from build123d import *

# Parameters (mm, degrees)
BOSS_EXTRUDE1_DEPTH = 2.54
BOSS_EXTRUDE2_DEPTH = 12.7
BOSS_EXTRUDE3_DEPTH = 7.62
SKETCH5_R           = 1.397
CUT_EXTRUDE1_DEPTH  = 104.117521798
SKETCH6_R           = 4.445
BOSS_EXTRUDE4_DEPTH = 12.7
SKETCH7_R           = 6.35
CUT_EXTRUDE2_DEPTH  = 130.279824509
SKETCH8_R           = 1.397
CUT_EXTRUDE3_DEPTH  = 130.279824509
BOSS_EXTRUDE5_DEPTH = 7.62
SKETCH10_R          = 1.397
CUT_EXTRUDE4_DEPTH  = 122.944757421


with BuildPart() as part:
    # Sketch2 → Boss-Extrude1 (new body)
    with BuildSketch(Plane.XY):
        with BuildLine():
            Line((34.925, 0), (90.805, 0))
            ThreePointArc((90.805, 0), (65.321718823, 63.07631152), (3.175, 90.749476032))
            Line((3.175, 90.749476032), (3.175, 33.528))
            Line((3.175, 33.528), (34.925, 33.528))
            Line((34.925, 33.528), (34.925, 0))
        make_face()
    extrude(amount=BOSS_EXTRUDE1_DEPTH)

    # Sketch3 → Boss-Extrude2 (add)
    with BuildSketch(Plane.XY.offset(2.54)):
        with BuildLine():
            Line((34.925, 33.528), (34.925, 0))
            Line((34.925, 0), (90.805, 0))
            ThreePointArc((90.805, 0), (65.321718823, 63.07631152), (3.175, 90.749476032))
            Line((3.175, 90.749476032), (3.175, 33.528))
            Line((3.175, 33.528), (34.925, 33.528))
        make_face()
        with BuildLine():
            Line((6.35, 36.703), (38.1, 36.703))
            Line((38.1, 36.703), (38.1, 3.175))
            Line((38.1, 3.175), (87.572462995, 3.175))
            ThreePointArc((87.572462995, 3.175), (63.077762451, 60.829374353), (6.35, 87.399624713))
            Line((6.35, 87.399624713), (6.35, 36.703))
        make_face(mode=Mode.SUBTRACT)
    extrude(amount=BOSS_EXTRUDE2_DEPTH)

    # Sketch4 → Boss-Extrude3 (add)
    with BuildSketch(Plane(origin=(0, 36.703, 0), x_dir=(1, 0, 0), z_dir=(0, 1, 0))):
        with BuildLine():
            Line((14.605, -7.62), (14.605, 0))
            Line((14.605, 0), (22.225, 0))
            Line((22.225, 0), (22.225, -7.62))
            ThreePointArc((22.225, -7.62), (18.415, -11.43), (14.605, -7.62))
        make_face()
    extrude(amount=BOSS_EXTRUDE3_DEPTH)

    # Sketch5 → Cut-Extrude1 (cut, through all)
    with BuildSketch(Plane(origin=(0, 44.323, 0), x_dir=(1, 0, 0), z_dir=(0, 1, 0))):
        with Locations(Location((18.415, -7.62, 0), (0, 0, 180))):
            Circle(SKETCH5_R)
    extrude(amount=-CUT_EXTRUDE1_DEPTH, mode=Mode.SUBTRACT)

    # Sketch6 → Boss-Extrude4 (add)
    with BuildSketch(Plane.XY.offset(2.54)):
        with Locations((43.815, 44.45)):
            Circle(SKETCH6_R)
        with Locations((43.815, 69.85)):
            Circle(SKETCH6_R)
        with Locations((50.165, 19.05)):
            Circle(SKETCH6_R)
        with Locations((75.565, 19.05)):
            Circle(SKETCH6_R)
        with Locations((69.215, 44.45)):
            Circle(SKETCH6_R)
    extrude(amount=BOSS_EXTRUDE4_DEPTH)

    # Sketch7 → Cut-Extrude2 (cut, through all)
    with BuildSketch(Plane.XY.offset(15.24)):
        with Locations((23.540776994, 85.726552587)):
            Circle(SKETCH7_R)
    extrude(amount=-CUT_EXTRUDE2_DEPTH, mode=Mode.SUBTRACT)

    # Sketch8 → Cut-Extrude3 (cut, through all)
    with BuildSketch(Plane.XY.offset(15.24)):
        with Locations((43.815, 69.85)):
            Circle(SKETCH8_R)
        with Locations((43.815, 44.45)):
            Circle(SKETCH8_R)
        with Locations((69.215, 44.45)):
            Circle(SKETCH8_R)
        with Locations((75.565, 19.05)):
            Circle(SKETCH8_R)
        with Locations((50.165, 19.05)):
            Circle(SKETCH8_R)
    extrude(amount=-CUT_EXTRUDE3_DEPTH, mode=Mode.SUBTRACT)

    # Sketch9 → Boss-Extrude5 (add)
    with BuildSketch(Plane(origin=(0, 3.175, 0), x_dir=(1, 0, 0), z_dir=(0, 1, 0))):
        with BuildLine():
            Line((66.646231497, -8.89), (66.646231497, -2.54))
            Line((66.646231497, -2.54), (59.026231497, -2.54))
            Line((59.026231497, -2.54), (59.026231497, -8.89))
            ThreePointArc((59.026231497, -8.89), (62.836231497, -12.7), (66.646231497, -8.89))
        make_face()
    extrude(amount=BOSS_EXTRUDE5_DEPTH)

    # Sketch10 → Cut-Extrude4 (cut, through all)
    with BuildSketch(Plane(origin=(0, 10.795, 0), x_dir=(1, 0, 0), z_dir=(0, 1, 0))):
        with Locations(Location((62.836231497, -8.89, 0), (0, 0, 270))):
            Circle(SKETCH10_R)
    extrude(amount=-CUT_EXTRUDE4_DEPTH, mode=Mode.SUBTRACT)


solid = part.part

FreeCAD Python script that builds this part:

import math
import FreeCAD as App
import Part
import Sketcher

V = App.Vector
Q = App.Units.Quantity

doc = App.newDocument("Part")
body = doc.addObject("PartDesign::Body", "Body")

# Sketch on XY plane
sketch1 = body.newObject("Sketcher::SketchObject", "Sketch")
sketch1.AttachmentSupport = (doc.getObject("XY_Plane"), [""])
sketch1.MapMode = "FlatFace"
sketch1.addGeometry(Part.LineSegment(V(34.925, 0, 0), V(90.805, 0, 0)), False)
sketch1.addGeometry(Part.ArcOfCircle(Part.Circle(V(0, 0, 0), V(0, 0, 1), 90.805), math.radians(0), math.radians(87.996243)), False)
sketch1.addGeometry(Part.LineSegment(V(3.175, 90.749476, 0), V(3.175, 33.528, 0)), False)
sketch1.addGeometry(Part.LineSegment(V(3.175, 33.528, 0), V(34.925, 33.528, 0)), False)
sketch1.addGeometry(Part.LineSegment(V(34.925, 33.528, 0), V(34.925, 0, 0)), False)
sketch1.addConstraint(Sketcher.Constraint("Coincident", 0, 2, 1, 1))
sketch1.addConstraint(Sketcher.Constraint("Coincident", 1, 2, 2, 1))
sketch1.addConstraint(Sketcher.Constraint("Coincident", 2, 2, 3, 1))
sketch1.addConstraint(Sketcher.Constraint("Coincident", 3, 2, 4, 1))
sketch1.addConstraint(Sketcher.Constraint("Coincident", 4, 2, 0, 1))
sketch1.addConstraint(Sketcher.Constraint("Horizontal", 0))
sketch1.addConstraint(Sketcher.Constraint("Vertical", 2))
sketch1.addConstraint(Sketcher.Constraint("Horizontal", 3))
sketch1.addConstraint(Sketcher.Constraint("Vertical", 4))
sketch1.addConstraint(Sketcher.Constraint("Coincident", 1, 3, -1, 1))
sketch1.addConstraint(Sketcher.Constraint("PointOnObject", 0, 2, -1))
sketch1.addConstraint(Sketcher.Constraint("DistanceX", 0, 1, 0, 2, Q("2.2 in")))
sketch1.addConstraint(Sketcher.Constraint("Radius", 1, Q("3.575 in")))
sketch1.addConstraint(Sketcher.Constraint("DistanceX", 3, 1, 3, 2, Q("1.25 in")))
sketch1.addConstraint(Sketcher.Constraint("DistanceY", 4, 2, 4, 1, Q("1.32 in")))
pad1 = body.newObject("PartDesign::Pad", "Pad")
pad1.Profile = sketch1
pad1.Length = Q("0.1 in")

# Sketch on XY plane
sketch2 = body.newObject("Sketcher::SketchObject", "Sketch001")
sketch2.AttachmentSupport = (doc.getObject("XY_Plane"), [""])
sketch2.MapMode = "FlatFace"
sketch2.AttachmentOffset = App.Placement(V(0, 0, 0.1 * 25.4), App.Rotation())
sketch2.addGeometry(Part.LineSegment(V(34.925, 33.528, 0), V(34.925, 0, 0)), False)
sketch2.addGeometry(Part.LineSegment(V(34.925, 0, 0), V(90.805, 0, 0)), False)
sketch2.addGeometry(Part.ArcOfCircle(Part.Circle(V(0, 0, 0), V(0, 0, 1), 90.805), math.radians(0), math.radians(87.996243)), False)
sketch2.addGeometry(Part.LineSegment(V(3.175, 90.749476, 0), V(3.175, 33.528, 0)), False)
sketch2.addGeometry(Part.LineSegment(V(3.175, 33.528, 0), V(34.925, 33.528, 0)), False)
sketch2.addGeometry(Part.LineSegment(V(38.1, 36.703, 0), V(6.35, 36.703, 0)), False)
sketch2.addGeometry(Part.LineSegment(V(6.35, 36.703, 0), V(6.35, 87.399625, 0)), False)
sketch2.addGeometry(Part.ArcOfCircle(Part.Circle(V(0, 0, 0), V(0, 0, 1), 87.63), math.radians(2.076389), math.radians(85.84449)), False)
sketch2.addGeometry(Part.LineSegment(V(87.572463, 3.175, 0), V(38.1, 3.175, 0)), False)
sketch2.addGeometry(Part.LineSegment(V(38.1, 3.175, 0), V(38.1, 36.703, 0)), False)
sketch2.addConstraint(Sketcher.Constraint("Coincident", 0, 2, 1, 1))
sketch2.addConstraint(Sketcher.Constraint("Coincident", 1, 2, 2, 1))
sketch2.addConstraint(Sketcher.Constraint("Coincident", 2, 2, 3, 1))
sketch2.addConstraint(Sketcher.Constraint("Coincident", 3, 2, 4, 1))
sketch2.addConstraint(Sketcher.Constraint("Coincident", 4, 2, 0, 1))
sketch2.addConstraint(Sketcher.Constraint("Coincident", 5, 2, 6, 1))
sketch2.addConstraint(Sketcher.Constraint("Coincident", 6, 2, 7, 2))
sketch2.addConstraint(Sketcher.Constraint("Coincident", 7, 1, 8, 1))
sketch2.addConstraint(Sketcher.Constraint("Coincident", 8, 2, 9, 1))
sketch2.addConstraint(Sketcher.Constraint("Coincident", 9, 2, 5, 1))
sketch2.addConstraint(Sketcher.Constraint("Vertical", 0))
sketch2.addConstraint(Sketcher.Constraint("Horizontal", 1))
sketch2.addConstraint(Sketcher.Constraint("Vertical", 3))
sketch2.addConstraint(Sketcher.Constraint("Horizontal", 4))
sketch2.addConstraint(Sketcher.Constraint("Horizontal", 5))
sketch2.addConstraint(Sketcher.Constraint("Vertical", 6))
sketch2.addConstraint(Sketcher.Constraint("Horizontal", 8))
sketch2.addConstraint(Sketcher.Constraint("Vertical", 9))
sketch2.addConstraint(Sketcher.Constraint("Coincident", 2, 3, -1, 1))
sketch2.addConstraint(Sketcher.Constraint("Coincident", 7, 3, -1, 1))
sketch2.addConstraint(Sketcher.Constraint("PointOnObject", 0, 2, -1))
sketch2.addConstraint(Sketcher.Constraint("Equal", 4, 5))
sketch2.addConstraint(Sketcher.Constraint("Equal", 0, 9))
sketch2.addConstraint(Sketcher.Constraint("Radius", 7, Q("3.45 in")))
sketch2.addConstraint(Sketcher.Constraint("DistanceX", 1, 1, 1, 2, Q("2.2 in")))
sketch2.addConstraint(Sketcher.Constraint("Radius", 2, Q("3.575 in")))
sketch2.addConstraint(Sketcher.Constraint("DistanceX", 4, 1, 4, 2, Q("1.25 in")))
sketch2.addConstraint(Sketcher.Constraint("DistanceY", 0, 2, 0, 1, Q("1.32 in")))
sketch2.addConstraint(Sketcher.Constraint("DistanceX", -1, 1, 8, 2, Q("1.5 in")))
sketch2.addConstraint(Sketcher.Constraint("DistanceY", -1, 1, 5, 2, Q("1.445 in")))
pad2 = body.newObject("PartDesign::Pad", "Pad001")
pad2.Profile = sketch2
pad2.Length = Q("0.5 in")

# Sketch on XZ plane
sketch3 = body.newObject("Sketcher::SketchObject", "Sketch002")
sketch3.AttachmentSupport = (doc.getObject("XZ_Plane"), [""])
sketch3.MapMode = "FlatFace"
sketch3.AttachmentOffset = App.Placement(V(0, 0, -1.445 * 25.4), App.Rotation())
sketch3.addGeometry(Part.LineSegment(V(14.605, 0, 0), V(14.605, 7.62, 0)), False)
sketch3.addGeometry(Part.ArcOfCircle(Part.Circle(V(18.415, 7.62, 0), V(0, 0, 1), 3.81), math.radians(0), math.radians(180)), False)
sketch3.addGeometry(Part.LineSegment(V(22.225, 7.62, 0), V(22.225, 0, 0)), False)
sketch3.addGeometry(Part.LineSegment(V(22.225, 0, 0), V(14.605, 0, 0)), False)
sketch3.addConstraint(Sketcher.Constraint("Tangent", 0, 2, 1, 2))
sketch3.addConstraint(Sketcher.Constraint("Tangent", 1, 1, 2, 1))
sketch3.addConstraint(Sketcher.Constraint("Coincident", 2, 2, 3, 1))
sketch3.addConstraint(Sketcher.Constraint("Coincident", 3, 2, 0, 1))
sketch3.addConstraint(Sketcher.Constraint("Vertical", 0))
sketch3.addConstraint(Sketcher.Constraint("Vertical", 2))
sketch3.addConstraint(Sketcher.Constraint("Horizontal", 3))
sketch3.addConstraint(Sketcher.Constraint("PointOnObject", 2, 2, -1))
sketch3.addConstraint(Sketcher.Constraint("Equal", 3, 0))
sketch3.addConstraint(Sketcher.Constraint("Radius", 1, Q("0.15 in")))
sketch3.addConstraint(Sketcher.Constraint("DistanceX", -1, 1, 1, 3, Q("0.725 in")))
pad3 = body.newObject("PartDesign::Pad", "Pad002")
pad3.Profile = sketch3
pad3.Length = Q("0.3 in")
pad3.Reversed = True

# Sketch on XZ plane
sketch4 = body.newObject("Sketcher::SketchObject", "Sketch003")
sketch4.AttachmentSupport = (doc.getObject("XZ_Plane"), [""])
sketch4.MapMode = "FlatFace"
sketch4.AttachmentOffset = App.Placement(V(0, 0, -1.745 * 25.4), App.Rotation())
sketch4.addGeometry(Part.Circle(V(18.415, 7.62, 0), V(0, 0, 1), 1.397), False)
sketch4.addConstraint(Sketcher.Constraint("Diameter", 0, Q("0.11 in")))
sketch4.addConstraint(Sketcher.Constraint("DistanceY", -1, 1, 0, 3, Q("0.3 in")))
sketch4.addConstraint(Sketcher.Constraint("DistanceX", -1, 1, 0, 3, Q("0.725 in")))
pocket1 = body.newObject("PartDesign::Pocket", "Pocket")
pocket1.Profile = sketch4
pocket1.Type = "ThroughAll"
pocket1.Reversed = True

# Sketch on XY plane
sketch5 = body.newObject("Sketcher::SketchObject", "Sketch004")
sketch5.AttachmentSupport = (doc.getObject("XY_Plane"), [""])
sketch5.MapMode = "FlatFace"
sketch5.AttachmentOffset = App.Placement(V(0, 0, 0.1 * 25.4), App.Rotation())
sketch5.addGeometry(Part.Circle(V(43.815, 44.45, 0), V(0, 0, 1), 4.445), False)
sketch5.addGeometry(Part.Circle(V(43.815, 69.85, 0), V(0, 0, 1), 4.445), False)
sketch5.addGeometry(Part.Circle(V(50.165, 19.05, 0), V(0, 0, 1), 4.445), False)
sketch5.addGeometry(Part.Circle(V(75.565, 19.05, 0), V(0, 0, 1), 4.445), False)
sketch5.addGeometry(Part.Circle(V(69.215, 44.45, 0), V(0, 0, 1), 4.445), False)
sketch5.addConstraint(Sketcher.Constraint("Equal", 0, 1))
sketch5.addConstraint(Sketcher.Constraint("Equal", 1, 2))
sketch5.addConstraint(Sketcher.Constraint("Equal", 2, 3))
sketch5.addConstraint(Sketcher.Constraint("Equal", 3, 4))
sketch5.addConstraint(Sketcher.Constraint("Horizontal", 2, 3, 3, 3))
sketch5.addConstraint(Sketcher.Constraint("Horizontal", 0, 3, 4, 3))
sketch5.addConstraint(Sketcher.Constraint("Vertical", 0, 3, 1, 3))
sketch5.addConstraint(Sketcher.Constraint("Diameter", 0, Q("0.35 in")))
sketch5.addConstraint(Sketcher.Constraint("DistanceY", 0, 3, 1, 3, Q("1 in")))
sketch5.addConstraint(Sketcher.Constraint("DistanceY", 2, 3, 0, 3, Q("1 in")))
sketch5.addConstraint(Sketcher.Constraint("DistanceX", 2, 3, 3, 3, Q("1 in")))
sketch5.addConstraint(Sketcher.Constraint("DistanceX", 0, 3, 4, 3, Q("1 in")))
sketch5.addConstraint(Sketcher.Constraint("DistanceY", -1, 1, 0, 3, Q("1.75 in")))
sketch5.addConstraint(Sketcher.Constraint("DistanceX", 0, 3, 2, 3, Q("0.25 in")))
sketch5.addConstraint(Sketcher.Constraint("DistanceX", -1, 1, 0, 3, Q("1.725 in")))
pad4 = body.newObject("PartDesign::Pad", "Pad003")
pad4.Profile = sketch5
pad4.Length = Q("0.5 in")

# Sketch on XY plane
sketch6 = body.newObject("Sketcher::SketchObject", "Sketch005")
sketch6.AttachmentSupport = (doc.getObject("XY_Plane"), [""])
sketch6.MapMode = "FlatFace"
sketch6.AttachmentOffset = App.Placement(V(0, 0, 0.6 * 25.4), App.Rotation())
sketch6.addGeometry(Part.Circle(V(23.540777, 85.726553, 0), V(0, 0, 1), 6.35), False)
sketch6.addConstraint(Sketcher.Constraint("Diameter", 0, Q("0.5 in")))
sketch6.addConstraint(Sketcher.Constraint("DistanceX", -1, 1, 0, 3, 23.540777))
sketch6.addConstraint(Sketcher.Constraint("DistanceY", -1, 1, 0, 3, 85.726553))
pocket2 = body.newObject("PartDesign::Pocket", "Pocket001")
pocket2.Profile = sketch6
pocket2.Type = "ThroughAll"

# Sketch on XY plane
sketch7 = body.newObject("Sketcher::SketchObject", "Sketch006")
sketch7.AttachmentSupport = (doc.getObject("XY_Plane"), [""])
sketch7.MapMode = "FlatFace"
sketch7.AttachmentOffset = App.Placement(V(0, 0, 0.6 * 25.4), App.Rotation())
sketch7.addGeometry(Part.Circle(V(43.815, 69.85, 0), V(0, 0, 1), 1.397), False)
sketch7.addGeometry(Part.Circle(V(43.815, 44.45, 0), V(0, 0, 1), 1.397), False)
sketch7.addGeometry(Part.Circle(V(69.215, 44.45, 0), V(0, 0, 1), 1.397), False)
sketch7.addGeometry(Part.Circle(V(75.565, 19.05, 0), V(0, 0, 1), 1.397), False)
sketch7.addGeometry(Part.Circle(V(50.165, 19.05, 0), V(0, 0, 1), 1.397), False)
sketch7.addConstraint(Sketcher.Constraint("Equal", 0, 1))
sketch7.addConstraint(Sketcher.Constraint("Equal", 1, 2))
sketch7.addConstraint(Sketcher.Constraint("Equal", 2, 3))
sketch7.addConstraint(Sketcher.Constraint("Equal", 3, 4))
sketch7.addConstraint(Sketcher.Constraint("Horizontal", 1, 3, 2, 3))
sketch7.addConstraint(Sketcher.Constraint("Horizontal", 3, 3, 4, 3))
sketch7.addConstraint(Sketcher.Constraint("Vertical", 0, 3, 1, 3))
sketch7.addConstraint(Sketcher.Constraint("Diameter", 0, Q("0.11 in")))
sketch7.addConstraint(Sketcher.Constraint("DistanceY", 1, 3, 0, 3, Q("1 in")))
sketch7.addConstraint(Sketcher.Constraint("DistanceX", 1, 3, 2, 3, Q("1 in")))
sketch7.addConstraint(Sketcher.Constraint("DistanceY", 3, 3, 2, 3, Q("1 in")))
sketch7.addConstraint(Sketcher.Constraint("DistanceX", 4, 3, 3, 3, Q("1 in")))
sketch7.addConstraint(Sketcher.Constraint("DistanceY", -1, 1, 0, 3, Q("2.75 in")))
sketch7.addConstraint(Sketcher.Constraint("DistanceX", 2, 3, 3, 3, Q("0.25 in")))
sketch7.addConstraint(Sketcher.Constraint("DistanceX", -1, 1, 0, 3, Q("1.725 in")))
pocket3 = body.newObject("PartDesign::Pocket", "Pocket002")
pocket3.Profile = sketch7
pocket3.Type = "ThroughAll"

# Sketch on XZ plane
sketch8 = body.newObject("Sketcher::SketchObject", "Sketch007")
sketch8.AttachmentSupport = (doc.getObject("XZ_Plane"), [""])
sketch8.MapMode = "FlatFace"
sketch8.AttachmentOffset = App.Placement(V(0, 0, -0.125 * 25.4), App.Rotation())
sketch8.addGeometry(Part.LineSegment(V(66.646231, 8.89, 0), V(66.646231, 2.54, 0)), False)
sketch8.addGeometry(Part.LineSegment(V(66.646231, 2.54, 0), V(59.026231, 2.54, 0)), False)
sketch8.addGeometry(Part.LineSegment(V(59.026231, 2.54, 0), V(59.026231, 8.89, 0)), False)
sketch8.addGeometry(Part.ArcOfCircle(Part.Circle(V(62.836231, 8.89, 0), V(0, 0, 1), 3.81), math.radians(0), math.radians(180)), False)
sketch8.addConstraint(Sketcher.Constraint("Coincident", 0, 2, 1, 1))
sketch8.addConstraint(Sketcher.Constraint("Coincident", 1, 2, 2, 1))
sketch8.addConstraint(Sketcher.Constraint("Tangent", 2, 2, 3, 2))
sketch8.addConstraint(Sketcher.Constraint("Tangent", 3, 1, 0, 1))
sketch8.addConstraint(Sketcher.Constraint("Vertical", 0))
sketch8.addConstraint(Sketcher.Constraint("Horizontal", 1))
sketch8.addConstraint(Sketcher.Constraint("Vertical", 2))
sketch8.addConstraint(Sketcher.Constraint("Radius", 3, Q("0.15 in")))
sketch8.addConstraint(Sketcher.Constraint("DistanceY", 0, 2, 0, 1, Q("0.25 in")))
sketch8.addConstraint(Sketcher.Constraint("DistanceY", -1, 1, 0, 2, Q("0.1 in")))
sketch8.addConstraint(Sketcher.Constraint("DistanceX", -1, 1, 3, 3, 62.836231))
pad5 = body.newObject("PartDesign::Pad", "Pad004")
pad5.Profile = sketch8
pad5.Length = Q("0.3 in")
pad5.Reversed = True

# Sketch on XZ plane
sketch9 = body.newObject("Sketcher::SketchObject", "Sketch008")
sketch9.AttachmentSupport = (doc.getObject("XZ_Plane"), [""])
sketch9.MapMode = "FlatFace"
sketch9.AttachmentOffset = App.Placement(V(0, 0, -0.425 * 25.4), App.Rotation())
sketch9.addGeometry(Part.Circle(V(62.836231, 8.89, 0), V(0, 0, 1), 1.397), False)
sketch9.addConstraint(Sketcher.Constraint("Diameter", 0, Q("0.11 in")))
sketch9.addConstraint(Sketcher.Constraint("DistanceY", -1, 1, 0, 3, Q("0.35 in")))
sketch9.addConstraint(Sketcher.Constraint("DistanceX", -1, 1, 0, 3, 62.836231))
pocket4 = body.newObject("PartDesign::Pocket", "Pocket003")
pocket4.Profile = sketch9
pocket4.Type = "ThroughAll"
pocket4.Reversed = True

doc.recompute()
